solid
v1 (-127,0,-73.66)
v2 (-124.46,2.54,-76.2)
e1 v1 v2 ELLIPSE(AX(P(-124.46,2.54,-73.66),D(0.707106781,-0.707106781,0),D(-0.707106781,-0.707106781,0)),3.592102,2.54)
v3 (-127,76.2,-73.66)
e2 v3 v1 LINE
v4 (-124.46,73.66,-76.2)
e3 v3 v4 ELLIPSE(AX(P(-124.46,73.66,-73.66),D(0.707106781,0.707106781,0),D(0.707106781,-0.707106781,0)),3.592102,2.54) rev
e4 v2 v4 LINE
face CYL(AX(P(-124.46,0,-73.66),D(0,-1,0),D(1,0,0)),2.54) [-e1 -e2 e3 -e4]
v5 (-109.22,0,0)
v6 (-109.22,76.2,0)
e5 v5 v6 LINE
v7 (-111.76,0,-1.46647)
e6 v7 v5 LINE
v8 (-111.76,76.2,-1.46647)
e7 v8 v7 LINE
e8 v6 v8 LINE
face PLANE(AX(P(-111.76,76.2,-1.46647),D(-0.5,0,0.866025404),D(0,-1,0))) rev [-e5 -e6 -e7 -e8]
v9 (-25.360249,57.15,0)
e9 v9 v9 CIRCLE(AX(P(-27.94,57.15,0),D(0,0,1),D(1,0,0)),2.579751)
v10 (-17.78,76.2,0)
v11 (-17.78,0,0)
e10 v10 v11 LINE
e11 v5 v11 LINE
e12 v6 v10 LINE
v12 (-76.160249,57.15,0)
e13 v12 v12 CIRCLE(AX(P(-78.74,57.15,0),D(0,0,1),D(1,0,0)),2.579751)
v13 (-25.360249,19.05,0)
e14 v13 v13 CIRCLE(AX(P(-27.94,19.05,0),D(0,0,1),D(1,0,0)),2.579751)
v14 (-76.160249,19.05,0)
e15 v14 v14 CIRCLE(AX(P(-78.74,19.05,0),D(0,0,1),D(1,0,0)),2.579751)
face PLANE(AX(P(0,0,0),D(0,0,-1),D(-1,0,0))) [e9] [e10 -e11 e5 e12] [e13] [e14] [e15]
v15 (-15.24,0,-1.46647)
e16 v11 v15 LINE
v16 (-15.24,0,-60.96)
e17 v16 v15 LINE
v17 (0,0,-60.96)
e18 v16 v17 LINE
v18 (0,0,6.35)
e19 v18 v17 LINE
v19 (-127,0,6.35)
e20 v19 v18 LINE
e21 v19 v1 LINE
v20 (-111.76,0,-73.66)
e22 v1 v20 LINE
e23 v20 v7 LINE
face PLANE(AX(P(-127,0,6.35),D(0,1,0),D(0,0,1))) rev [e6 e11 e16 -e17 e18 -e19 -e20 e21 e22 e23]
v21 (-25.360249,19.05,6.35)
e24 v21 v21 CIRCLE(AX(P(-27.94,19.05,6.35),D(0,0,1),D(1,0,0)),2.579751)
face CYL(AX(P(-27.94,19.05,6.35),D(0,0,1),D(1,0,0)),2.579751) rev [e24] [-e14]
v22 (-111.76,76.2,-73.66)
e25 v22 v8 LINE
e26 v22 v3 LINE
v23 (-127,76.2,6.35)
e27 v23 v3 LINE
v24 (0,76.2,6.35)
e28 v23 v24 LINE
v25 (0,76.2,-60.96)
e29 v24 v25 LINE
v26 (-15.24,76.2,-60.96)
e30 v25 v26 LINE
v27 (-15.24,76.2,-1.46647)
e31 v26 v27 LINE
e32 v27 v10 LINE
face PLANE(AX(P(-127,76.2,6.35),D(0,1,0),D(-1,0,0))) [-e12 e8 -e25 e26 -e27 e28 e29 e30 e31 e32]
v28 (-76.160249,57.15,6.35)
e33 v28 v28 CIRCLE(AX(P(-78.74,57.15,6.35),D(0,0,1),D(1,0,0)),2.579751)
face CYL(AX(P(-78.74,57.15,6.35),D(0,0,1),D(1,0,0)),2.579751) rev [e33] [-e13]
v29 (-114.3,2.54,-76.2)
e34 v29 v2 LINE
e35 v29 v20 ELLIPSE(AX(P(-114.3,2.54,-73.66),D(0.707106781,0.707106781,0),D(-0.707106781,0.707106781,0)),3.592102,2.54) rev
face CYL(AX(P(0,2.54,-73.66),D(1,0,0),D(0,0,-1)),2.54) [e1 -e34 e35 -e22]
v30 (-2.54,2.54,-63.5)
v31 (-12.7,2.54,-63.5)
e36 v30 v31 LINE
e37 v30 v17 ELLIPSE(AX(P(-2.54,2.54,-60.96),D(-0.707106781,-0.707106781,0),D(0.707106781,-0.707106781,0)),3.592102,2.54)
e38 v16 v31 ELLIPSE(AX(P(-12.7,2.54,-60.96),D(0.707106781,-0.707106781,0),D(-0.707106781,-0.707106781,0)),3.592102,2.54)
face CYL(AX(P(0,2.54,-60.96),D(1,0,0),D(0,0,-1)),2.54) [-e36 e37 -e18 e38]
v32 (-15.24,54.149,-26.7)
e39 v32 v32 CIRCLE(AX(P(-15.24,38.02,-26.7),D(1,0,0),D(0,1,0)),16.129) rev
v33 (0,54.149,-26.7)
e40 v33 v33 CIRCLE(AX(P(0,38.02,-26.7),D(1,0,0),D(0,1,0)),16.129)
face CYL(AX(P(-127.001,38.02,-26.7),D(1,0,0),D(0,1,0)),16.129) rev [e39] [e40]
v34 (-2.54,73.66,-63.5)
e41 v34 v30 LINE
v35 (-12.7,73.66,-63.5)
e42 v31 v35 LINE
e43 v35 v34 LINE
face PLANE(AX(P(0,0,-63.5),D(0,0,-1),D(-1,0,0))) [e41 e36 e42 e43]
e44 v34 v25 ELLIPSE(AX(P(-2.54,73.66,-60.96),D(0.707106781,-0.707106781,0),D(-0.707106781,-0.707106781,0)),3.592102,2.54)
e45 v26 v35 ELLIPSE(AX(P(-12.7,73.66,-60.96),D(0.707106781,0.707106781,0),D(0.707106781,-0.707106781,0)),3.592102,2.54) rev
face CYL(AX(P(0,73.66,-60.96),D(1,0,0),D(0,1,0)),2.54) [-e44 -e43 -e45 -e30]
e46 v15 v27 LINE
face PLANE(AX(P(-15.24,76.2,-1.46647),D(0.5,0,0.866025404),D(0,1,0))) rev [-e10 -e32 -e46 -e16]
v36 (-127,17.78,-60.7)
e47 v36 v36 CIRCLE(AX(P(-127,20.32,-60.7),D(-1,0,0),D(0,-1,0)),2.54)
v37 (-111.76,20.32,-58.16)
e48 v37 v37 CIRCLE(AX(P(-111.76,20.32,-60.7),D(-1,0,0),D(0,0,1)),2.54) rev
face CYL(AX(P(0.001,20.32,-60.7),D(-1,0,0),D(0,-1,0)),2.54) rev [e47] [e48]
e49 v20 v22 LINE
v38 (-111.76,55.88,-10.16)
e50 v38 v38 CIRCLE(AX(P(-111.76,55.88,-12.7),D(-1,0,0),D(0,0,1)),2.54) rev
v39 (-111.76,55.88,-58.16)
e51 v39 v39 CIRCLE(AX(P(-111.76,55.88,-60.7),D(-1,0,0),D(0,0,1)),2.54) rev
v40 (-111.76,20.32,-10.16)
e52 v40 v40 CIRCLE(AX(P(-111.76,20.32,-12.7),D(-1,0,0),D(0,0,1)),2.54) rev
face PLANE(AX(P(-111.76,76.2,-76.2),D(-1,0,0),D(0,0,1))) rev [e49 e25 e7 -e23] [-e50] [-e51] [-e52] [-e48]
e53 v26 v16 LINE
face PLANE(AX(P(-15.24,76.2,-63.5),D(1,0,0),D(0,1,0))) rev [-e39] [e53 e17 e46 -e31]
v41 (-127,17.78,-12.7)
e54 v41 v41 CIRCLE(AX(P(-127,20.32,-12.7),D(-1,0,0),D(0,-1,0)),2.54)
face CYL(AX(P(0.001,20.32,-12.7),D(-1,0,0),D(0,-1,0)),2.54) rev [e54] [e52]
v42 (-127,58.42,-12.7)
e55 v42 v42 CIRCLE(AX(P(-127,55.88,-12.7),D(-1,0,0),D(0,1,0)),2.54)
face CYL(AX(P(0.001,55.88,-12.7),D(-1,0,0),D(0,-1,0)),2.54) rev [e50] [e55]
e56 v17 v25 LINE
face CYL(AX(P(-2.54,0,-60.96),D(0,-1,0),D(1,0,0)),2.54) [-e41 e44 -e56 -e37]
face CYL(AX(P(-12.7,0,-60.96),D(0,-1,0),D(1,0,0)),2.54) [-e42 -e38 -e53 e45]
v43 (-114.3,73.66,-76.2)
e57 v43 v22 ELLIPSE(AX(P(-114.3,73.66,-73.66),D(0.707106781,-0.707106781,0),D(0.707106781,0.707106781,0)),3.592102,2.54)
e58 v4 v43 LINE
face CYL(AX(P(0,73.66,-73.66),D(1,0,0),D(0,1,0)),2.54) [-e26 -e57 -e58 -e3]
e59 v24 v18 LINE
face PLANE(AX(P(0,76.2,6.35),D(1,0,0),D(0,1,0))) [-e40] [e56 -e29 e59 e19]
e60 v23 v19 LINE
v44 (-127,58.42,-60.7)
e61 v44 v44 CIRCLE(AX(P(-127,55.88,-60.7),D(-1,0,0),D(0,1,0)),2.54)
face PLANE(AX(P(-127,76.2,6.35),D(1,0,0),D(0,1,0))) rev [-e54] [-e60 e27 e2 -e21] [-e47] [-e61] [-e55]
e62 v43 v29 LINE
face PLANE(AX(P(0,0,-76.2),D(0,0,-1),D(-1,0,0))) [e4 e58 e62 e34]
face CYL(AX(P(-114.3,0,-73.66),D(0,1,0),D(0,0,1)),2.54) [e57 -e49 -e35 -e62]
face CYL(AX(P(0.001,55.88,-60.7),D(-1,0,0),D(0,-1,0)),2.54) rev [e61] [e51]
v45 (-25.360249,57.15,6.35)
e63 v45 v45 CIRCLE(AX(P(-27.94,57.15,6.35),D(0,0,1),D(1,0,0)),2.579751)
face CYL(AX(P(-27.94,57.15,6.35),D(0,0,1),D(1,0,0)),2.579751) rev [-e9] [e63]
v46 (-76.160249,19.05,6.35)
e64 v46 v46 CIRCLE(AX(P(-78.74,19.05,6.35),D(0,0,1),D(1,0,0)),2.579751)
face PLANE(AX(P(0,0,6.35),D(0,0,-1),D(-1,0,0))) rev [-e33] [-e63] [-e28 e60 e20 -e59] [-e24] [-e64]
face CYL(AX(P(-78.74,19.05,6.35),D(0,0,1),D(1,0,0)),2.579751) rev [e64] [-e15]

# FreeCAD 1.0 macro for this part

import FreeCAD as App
import Part
import Sketcher

V = App.Vector
Q = App.Units.Quantity


def edges_at(feature, points):
    """Names of the edges that pass closest to the given points."""
    edges = feature.Shape.Edges
    near = lambda p: min(range(len(edges)), key=lambda i: edges[i].distToShape(Part.Vertex(*p))[0])
    return sorted({f"Edge{near(p) + 1}" for p in points})


def add_polygon(sketch, points):
    """Adds a closed chain of lines whose ends are joined by coincident constraints."""
    first, n = sketch.GeometryCount, len(points)
    for a, b in zip(points, points[1:] + points[:1]):
        sketch.addGeometry(Part.LineSegment(App.Vector(*a, 0), App.Vector(*b, 0)), False)
    for i in range(n):
        sketch.addConstraint(Sketcher.Constraint("Coincident", first + i, 2, first + (i + 1) % n, 1))

doc = App.newDocument("Part")
params = doc.addObject("Spreadsheet::Sheet", "Params")
for row, (alias, value) in enumerate([
    ("sketch1_width", "5 in"),
    ("sketch1_height", "3 in"),
    ("pad1_length", "0.25 in"),
    ("hole_diameter", "5.159502 mm"),
    ("sketch3_height", "3 in"),
    ("sketch3_width", "0.6 in"),
    ("pad2_length", "2.5 in"),
    ("chamfer_size", "0.1 in"),
    ("chamfer_size2", "1.46647 mm"),
    ("fillet_radius", "0.1 in"),
    ("sketch4_height", "3 in"),
    ("sketch4_width", "0.6 in"),
    ("pad3_length", "3 in"),
    ("chamfer2_size", "0.1 in"),
    ("chamfer2_size2", "1.46647 mm"),
    ("fillet2_radius", "0.1 in"),
    ("sketch5_diameter", "0.2 in"),
    ("sketch6_diameter", "0.2 in"),
    ("sketch7_diameter", "0.2 in"),
    ("sketch8_diameter", "0.2 in"),
    ("sketch9_diameter", "1.27 in"),
], start=1):
    params.set(f"A{row}", alias)
    params.set(f"B{row}", "=" + value)
    params.setAlias(f"B{row}", alias)

body = doc.addObject("PartDesign::Body", "Body")

sketch1 = body.newObject("Sketcher::SketchObject", "Sketch")
sketch1.AttachmentSupport = (doc.getObject("XY_Plane"), [""])
sketch1.MapMode = "FlatFace"
add_polygon(sketch1, [(-127, 76), (-127, 0), (0, 0), (0, 76)])
sketch1.addConstraint([
    Sketcher.Constraint("Vertical", 0),
    Sketcher.Constraint("Horizontal", 1),
    Sketcher.Constraint("Vertical", 2),
    Sketcher.Constraint("Horizontal", 3),
    Sketcher.Constraint("Coincident", 1, 2, -1, 1),
    Sketcher.Constraint("DistanceX", 1, 1, 1, 2, Q("5 in")),
    Sketcher.Constraint("DistanceY", 0, 2, 0, 1, Q("3 in")),
])
sketch1.setExpression("Constraints[9]", "Params.sketch1_width")
sketch1.setExpression("Constraints[10]", "Params.sketch1_height")
pad1 = body.newObject("PartDesign::Pad", "Pad")
pad1.Profile = sketch1
pad1.setExpression("Length", "Params.pad1_length")

sketch2 = body.newObject("Sketcher::SketchObject", "Sketch001")
sketch2.AttachmentSupport = (doc.getObject("XY_Plane"), [""])
sketch2.MapMode = "FlatFace"
sketch2.AttachmentOffset = App.Placement(V(0, 0, 0.25 * 25.4), App.Rotation())
sketch2.addGeometry([
    Part.Circle(V(-78.7, 57.1, 0), V(0, 0, 1), 2.6),
    Part.Circle(V(-78.7, 19.1, 0), V(0, 0, 1), 2.6),
    Part.Circle(V(-27.9, 57.1, 0), V(0, 0, 1), 2.6),
    Part.Circle(V(-27.9, 19.1, 0), V(0, 0, 1), 2.6),
], False)
sketch2.addConstraint([
    Sketcher.Constraint("Equal", 0, 1),
    Sketcher.Constraint("Equal", 1, 2),
    Sketcher.Constraint("Equal", 2, 3),
    Sketcher.Constraint("Horizontal", 0, 3, 2, 3),
    Sketcher.Constraint("Horizontal", 1, 3, 3, 3),
    Sketcher.Constraint("Vertical", 0, 3, 1, 3),
    Sketcher.Constraint("Vertical", 2, 3, 3, 3),
    Sketcher.Constraint("DistanceX", 0, 3, 2, 3, Q("2 in")),
    Sketcher.Constraint("DistanceX", 0, 3, -1, 1, Q("3.1 in")),
    Sketcher.Constraint("DistanceY", 1, 3, 0, 3, Q("1.5 in")),
    Sketcher.Constraint("Diameter", 0, 5.159502),
    Sketcher.Constraint("DistanceY", -1, 1, 0, 3, Q("2.25 in")),
])
doc.recompute()
hole = body.newObject("PartDesign::Hole", "Hole")
hole.Profile = sketch2
hole.ThreadType = "None"
hole.setExpression("Diameter", "Params.hole_diameter")
hole.DepthType = "ThroughAll"

sketch3 = body.newObject("Sketcher::SketchObject", "Sketch002")
sketch3.AttachmentSupport = (doc.getObject("XY_Plane"), [""])
sketch3.MapMode = "FlatFace"
add_polygon(sketch3, [(0, 76), (0, 0), (-15, 0), (-15, 76)])
sketch3.addConstraint([
    Sketcher.Constraint("Vertical", 0),
    Sketcher.Constraint("Horizontal", 1),
    Sketcher.Constraint("Vertical", 2),
    Sketcher.Constraint("Horizontal", 3),
    Sketcher.Constraint("Coincident", 0, 2, -1, 1),
    Sketcher.Constraint("DistanceY", 0, 2, 0, 1, Q("3 in")),
    Sketcher.Constraint("DistanceX", 1, 2, 1, 1, Q("0.6 in")),
])
sketch3.setExpression("Constraints[9]", "Params.sketch3_height")
sketch3.setExpression("Constraints[10]", "Params.sketch3_width")
pad2 = body.newObject("PartDesign::Pad", "Pad001")
pad2.Profile = sketch3
pad2.setExpression("Length", "Params.pad2_length")
pad2.Reversed = True
doc.recompute()

chamfer = body.newObject("PartDesign::Chamfer", "Chamfer")
chamfer.Base = (pad2, edges_at(pad2, [(-15.24, 38.1, 0)]))
chamfer.ChamferType = "Two distances"
chamfer.setExpression("Size", "Params.chamfer_size")
chamfer.setExpression("Size2", "Params.chamfer_size2")
doc.recompute()

fillet = body.newObject("PartDesign::Fillet", "Fillet")
fillet.Base = (chamfer, edges_at(chamfer, [
    (-15.24, 38.1, -63.5),
    (-7.62, 76.2, -63.5),
    (0, 38.1, -63.5),
    (-7.62, 0, -63.5),
]))
fillet.setExpression("Radius", "Params.fillet_radius")

sketch4 = body.newObject("Sketcher::SketchObject", "Sketch003")
sketch4.AttachmentSupport = (doc.getObject("XY_Plane"), [""])
sketch4.MapMode = "FlatFace"
add_polygon(sketch4, [(-112, 76), (-112, 0), (-127, 0), (-127, 76)])
sketch4.addConstraint([
    Sketcher.Constraint("Vertical", 0),
    Sketcher.Constraint("Horizontal", 1),
    Sketcher.Constraint("Vertical", 2),
    Sketcher.Constraint("Horizontal", 3),
    Sketcher.Constraint("PointOnObject", 0, 2, -1),
    Sketcher.Constraint("DistanceY", 0, 2, 0, 1, Q("3 in")),
    Sketcher.Constraint("DistanceX", 1, 2, 1, 1, Q("0.6 in")),
    Sketcher.Constraint("DistanceX", 1, 2, -1, 1, Q("5 in")),
])
sketch4.setExpression("Constraints[9]", "Params.sketch4_height")
sketch4.setExpression("Constraints[10]", "Params.sketch4_width")
pad3 = body.newObject("PartDesign::Pad", "Pad002")
pad3.Profile = sketch4
pad3.setExpression("Length", "Params.pad3_length")
pad3.Reversed = True
doc.recompute()

chamfer2 = body.newObject("PartDesign::Chamfer", "Chamfer001")
chamfer2.Base = (pad3, edges_at(pad3, [(-111.76, 38.1, 0)]))
chamfer2.ChamferType = "Two distances"
chamfer2.setExpression("Size", "Params.chamfer2_size")
chamfer2.setExpression("Size2", "Params.chamfer2_size2")
doc.recompute()

fillet2 = body.newObject("PartDesign::Fillet", "Fillet001")
fillet2.Base = (chamfer2, edges_at(chamfer2, [
    (-127, 38.1, -76.2),
    (-119.38, 76.2, -76.2),
    (-111.76, 38.1, -76.2),
    (-119.38, 0, -76.2),
]))
fillet2.setExpression("Radius", "Params.fillet2_radius")

sketch5 = body.newObject("Sketcher::SketchObject", "Sketch004")
sketch5.AttachmentSupport = (doc.getObject("YZ_Plane"), [""])
sketch5.MapMode = "FlatFace"
sketch5.AttachmentOffset = App.Placement(V(0, 0, -5 * 25.4), App.Rotation())
sketch5.addGeometry(Part.Circle(V(20.3, -12.7, 0), V(0, 0, 1), 2.5), False)
sketch5.addConstraint([
    Sketcher.Constraint("Diameter", 0, Q("0.2 in")),
    Sketcher.Constraint("DistanceX", -1, 1, 0, 3, Q("0.8 in")),
    Sketcher.Constraint("DistanceY", 0, 3, -1, 1, Q("0.5 in")),
])
sketch5.setExpression("Constraints[0]", "Params.sketch5_diameter")
pocket1 = body.newObject("PartDesign::Pocket", "Pocket")
pocket1.Profile = sketch5
pocket1.Type = "UpToFirst"
pocket1.Reversed = True

sketch6 = body.newObject("Sketcher::SketchObject", "Sketch005")
sketch6.AttachmentSupport = (doc.getObject("YZ_Plane"), [""])
sketch6.MapMode = "FlatFace"
sketch6.AttachmentOffset = App.Placement(V(0, 0, -5 * 25.4), App.Rotation())
sketch6.addGeometry(Part.Circle(V(55.9, -12.7, 0), V(0, 0, 1), 2.5), False)
sketch6.addConstraint([
    Sketcher.Constraint("Diameter", 0, Q("0.2 in")),
    Sketcher.Constraint("DistanceX", -1, 1, 0, 3, Q("2.2 in")),
    Sketcher.Constraint("DistanceY", 0, 3, -1, 1, Q("0.5 in")),
])
sketch6.setExpression("Constraints[0]", "Params.sketch6_diameter")
pocket2 = body.newObject("PartDesign::Pocket", "Pocket001")
pocket2.Profile = sketch6
pocket2.Type = "UpToFirst"
pocket2.Reversed = True

sketch7 = body.newObject("Sketcher::SketchObject", "Sketch006")
sketch7.AttachmentSupport = (doc.getObject("YZ_Plane"), [""])
sketch7.MapMode = "FlatFace"
sketch7.AttachmentOffset = App.Placement(V(0, 0, -5 * 25.4), App.Rotation())
sketch7.addGeometry(Part.Circle(V(20.3, -60.7, 0), V(0, 0, 1), 2.5), False)
sketch7.addConstraint([
    Sketcher.Constraint("Diameter", 0, Q("0.2 in")),
    Sketcher.Constraint("DistanceX", -1, 1, 0, 3, Q("0.8 in")),
    Sketcher.Constraint("DistanceY", 0, 3, -1, 1, 60.7),
])
sketch7.setExpression("Constraints[0]", "Params.sketch7_diameter")
pocket3 = body.newObject("PartDesign::Pocket", "Pocket002")
pocket3.Profile = sketch7
pocket3.Type = "UpToFirst"
pocket3.Reversed = True

sketch8 = body.newObject("Sketcher::SketchObject", "Sketch007")
sketch8.AttachmentSupport = (doc.getObject("YZ_Plane"), [""])
sketch8.MapMode = "FlatFace"
sketch8.AttachmentOffset = App.Placement(V(0, 0, -5 * 25.4), App.Rotation())
sketch8.addGeometry(Part.Circle(V(55.9, -60.7, 0), V(0, 0, 1), 2.5), False)
sketch8.addConstraint([
    Sketcher.Constraint("Diameter", 0, Q("0.2 in")),
    Sketcher.Constraint("DistanceX", -1, 1, 0, 3, Q("2.2 in")),
    Sketcher.Constraint("DistanceY", 0, 3, -1, 1, 60.7),
])
sketch8.setExpression("Constraints[0]", "Params.sketch8_diameter")
pocket4 = body.newObject("PartDesign::Pocket", "Pocket003")
pocket4.Profile = sketch8
pocket4.Type = "UpToFirst"
pocket4.Reversed = True

sketch9 = body.newObject("Sketcher::SketchObject", "Sketch008")
sketch9.AttachmentSupport = (doc.getObject("YZ_Plane"), [""])
sketch9.MapMode = "FlatFace"
sketch9.addGeometry(Part.Circle(V(38, -27, 0), V(0, 0, 1), 16), False)
sketch9.addConstraint([
    Sketcher.Constraint("Diameter", 0, Q("1.27 in")),
    Sketcher.Constraint("DistanceX", -1, 1, 0, 3, 38.02),
    Sketcher.Constraint("DistanceY", 0, 3, -1, 1, 26.7),
])
sketch9.setExpression("Constraints[0]", "Params.sketch9_diameter")
pocket5 = body.newObject("PartDesign::Pocket", "Pocket004")
pocket5.Profile = sketch9
pocket5.Type = "UpToFirst"

doc.recompute()
